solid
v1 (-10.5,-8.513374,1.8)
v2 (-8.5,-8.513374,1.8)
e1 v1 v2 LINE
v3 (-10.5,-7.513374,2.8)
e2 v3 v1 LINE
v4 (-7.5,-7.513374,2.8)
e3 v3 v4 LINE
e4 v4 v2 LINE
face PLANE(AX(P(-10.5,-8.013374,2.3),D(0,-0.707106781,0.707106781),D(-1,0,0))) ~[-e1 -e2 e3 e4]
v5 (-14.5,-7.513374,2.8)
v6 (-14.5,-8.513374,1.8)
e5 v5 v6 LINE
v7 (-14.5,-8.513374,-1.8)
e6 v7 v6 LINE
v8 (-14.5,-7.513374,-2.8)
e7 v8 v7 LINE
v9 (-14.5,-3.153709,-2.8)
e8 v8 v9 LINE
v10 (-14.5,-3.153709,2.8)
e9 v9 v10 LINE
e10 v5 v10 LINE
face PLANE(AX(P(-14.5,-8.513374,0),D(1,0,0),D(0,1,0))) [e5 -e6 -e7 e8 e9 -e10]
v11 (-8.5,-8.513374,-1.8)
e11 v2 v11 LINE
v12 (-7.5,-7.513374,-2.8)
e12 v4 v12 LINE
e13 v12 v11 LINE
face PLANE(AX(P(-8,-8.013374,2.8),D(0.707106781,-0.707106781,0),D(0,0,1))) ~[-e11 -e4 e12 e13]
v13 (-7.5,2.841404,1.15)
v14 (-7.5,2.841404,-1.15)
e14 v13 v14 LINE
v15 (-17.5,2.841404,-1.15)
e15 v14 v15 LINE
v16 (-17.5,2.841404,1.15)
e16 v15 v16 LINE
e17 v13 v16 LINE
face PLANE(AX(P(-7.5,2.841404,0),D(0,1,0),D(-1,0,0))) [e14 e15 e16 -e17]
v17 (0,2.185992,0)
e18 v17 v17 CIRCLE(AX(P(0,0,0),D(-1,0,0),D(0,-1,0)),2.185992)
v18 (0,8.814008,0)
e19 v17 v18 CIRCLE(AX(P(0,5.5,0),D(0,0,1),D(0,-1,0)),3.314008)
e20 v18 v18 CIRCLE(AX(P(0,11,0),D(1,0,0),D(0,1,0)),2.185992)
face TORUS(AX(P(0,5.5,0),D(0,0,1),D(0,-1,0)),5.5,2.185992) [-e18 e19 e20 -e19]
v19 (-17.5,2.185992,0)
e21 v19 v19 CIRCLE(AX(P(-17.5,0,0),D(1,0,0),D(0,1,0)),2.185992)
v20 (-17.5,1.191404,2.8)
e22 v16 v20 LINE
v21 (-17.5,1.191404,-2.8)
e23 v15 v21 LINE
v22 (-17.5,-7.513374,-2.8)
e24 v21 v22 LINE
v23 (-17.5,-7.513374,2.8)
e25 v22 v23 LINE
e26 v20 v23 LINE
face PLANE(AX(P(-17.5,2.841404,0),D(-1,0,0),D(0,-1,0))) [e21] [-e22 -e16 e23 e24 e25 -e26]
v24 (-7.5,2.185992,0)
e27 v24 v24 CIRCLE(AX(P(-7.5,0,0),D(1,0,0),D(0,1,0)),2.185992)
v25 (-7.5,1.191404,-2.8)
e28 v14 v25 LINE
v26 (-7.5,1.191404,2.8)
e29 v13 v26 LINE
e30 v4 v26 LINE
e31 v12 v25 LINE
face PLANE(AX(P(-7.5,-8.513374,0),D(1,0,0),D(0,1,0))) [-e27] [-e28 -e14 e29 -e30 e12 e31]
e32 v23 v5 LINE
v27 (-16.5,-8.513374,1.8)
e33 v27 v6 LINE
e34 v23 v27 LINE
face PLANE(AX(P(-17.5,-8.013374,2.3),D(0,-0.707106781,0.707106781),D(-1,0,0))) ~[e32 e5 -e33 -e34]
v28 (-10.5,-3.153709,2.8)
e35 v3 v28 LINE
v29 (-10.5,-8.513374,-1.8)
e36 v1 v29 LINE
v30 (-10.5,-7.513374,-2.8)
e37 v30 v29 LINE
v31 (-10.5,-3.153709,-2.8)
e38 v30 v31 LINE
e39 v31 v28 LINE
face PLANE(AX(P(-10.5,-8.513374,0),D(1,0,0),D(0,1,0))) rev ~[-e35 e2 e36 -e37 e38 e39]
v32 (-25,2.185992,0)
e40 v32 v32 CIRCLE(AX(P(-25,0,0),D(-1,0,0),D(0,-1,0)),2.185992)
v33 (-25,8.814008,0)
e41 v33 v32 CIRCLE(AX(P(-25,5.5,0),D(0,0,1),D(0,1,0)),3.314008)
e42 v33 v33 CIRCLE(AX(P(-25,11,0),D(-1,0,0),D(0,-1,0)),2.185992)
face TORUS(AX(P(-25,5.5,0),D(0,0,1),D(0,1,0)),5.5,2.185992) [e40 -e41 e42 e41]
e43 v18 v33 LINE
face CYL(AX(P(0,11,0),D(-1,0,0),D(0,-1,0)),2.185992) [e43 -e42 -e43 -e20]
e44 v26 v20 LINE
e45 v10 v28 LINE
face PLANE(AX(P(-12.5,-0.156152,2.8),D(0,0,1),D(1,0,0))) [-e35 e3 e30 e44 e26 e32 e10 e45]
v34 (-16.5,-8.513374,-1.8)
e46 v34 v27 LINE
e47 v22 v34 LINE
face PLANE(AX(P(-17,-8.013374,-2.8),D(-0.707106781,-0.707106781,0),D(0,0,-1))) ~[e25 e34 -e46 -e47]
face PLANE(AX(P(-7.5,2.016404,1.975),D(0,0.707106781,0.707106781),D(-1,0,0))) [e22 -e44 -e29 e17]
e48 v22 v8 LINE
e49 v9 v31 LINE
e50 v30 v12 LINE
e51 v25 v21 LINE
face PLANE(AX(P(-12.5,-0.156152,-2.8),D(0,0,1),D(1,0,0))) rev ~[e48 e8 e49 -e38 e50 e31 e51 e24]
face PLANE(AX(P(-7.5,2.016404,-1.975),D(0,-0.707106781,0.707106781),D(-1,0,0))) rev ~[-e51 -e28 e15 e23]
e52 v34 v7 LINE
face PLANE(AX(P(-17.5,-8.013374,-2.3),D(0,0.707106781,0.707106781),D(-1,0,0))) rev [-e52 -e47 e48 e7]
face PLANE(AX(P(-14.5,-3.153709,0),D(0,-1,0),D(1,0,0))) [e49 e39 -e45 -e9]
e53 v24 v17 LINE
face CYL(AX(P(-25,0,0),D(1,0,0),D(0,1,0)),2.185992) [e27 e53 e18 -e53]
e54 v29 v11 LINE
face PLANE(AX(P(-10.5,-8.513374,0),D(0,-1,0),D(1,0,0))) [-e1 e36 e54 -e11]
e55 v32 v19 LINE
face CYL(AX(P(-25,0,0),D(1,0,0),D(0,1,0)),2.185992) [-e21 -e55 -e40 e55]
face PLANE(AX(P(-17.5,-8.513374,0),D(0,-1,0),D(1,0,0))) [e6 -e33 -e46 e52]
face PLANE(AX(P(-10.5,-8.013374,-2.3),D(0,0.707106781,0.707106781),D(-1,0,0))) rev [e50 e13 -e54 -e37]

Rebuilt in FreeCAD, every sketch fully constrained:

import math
import FreeCAD as App
import Part
import Sketcher

V = App.Vector


def edges_at(feature, points):
    """Names of the edges that pass closest to the given points."""
    edges = feature.Shape.Edges
    near = lambda p: min(range(len(edges)), key=lambda i: edges[i].distToShape(Part.Vertex(*p))[0])
    return sorted({f"Edge{near(p) + 1}" for p in points})

doc = App.newDocument("Part")
body = doc.addObject("PartDesign::Body", "Body")

sketch1 = body.newObject("Sketcher::SketchObject", "Sketch")
sketch1.AttachmentSupport = (doc.getObject("YZ_Plane"), [""])
sketch1.MapMode = "FlatFace"
sketch1.addGeometry(Part.Circle(V(0, 0, 0), V(0, 0, 1), 2.185992), False)
sketch1.addConstraint([
    Sketcher.Constraint("Coincident", 0, 3, -1, 1),
    Sketcher.Constraint("Diameter", 0, 4.371984),
])

sketch2 = body.newObject("Sketcher::SketchObject", "Sketch001")
sketch2.AttachmentSupport = (doc.getObject("XY_Plane"), [""])
sketch2.MapMode = "FlatFace"
sketch2.addGeometry([
    Part.ArcOfCircle(Part.Circle(V(0, 5.5, 0), V(0, 0, 1), 5.5), math.radians(-90), math.radians(90)),
    Part.LineSegment(V(0, 11, 0), V(-25, 11, 0)),
    Part.ArcOfCircle(Part.Circle(V(-25, 5.5, 0), V(0, 0, 1), 5.5), math.radians(90), math.radians(270)),
    Part.LineSegment(V(-25, 0, 0), V(0, 0, 0)),
], False)
sketch2.addConstraint([
    Sketcher.Constraint("Tangent", 0, 2, 1, 1),
    Sketcher.Constraint("Tangent", 1, 2, 2, 1),
    Sketcher.Constraint("Tangent", 2, 2, 3, 1),
    Sketcher.Constraint("Tangent", 3, 2, 0, 1),
    Sketcher.Constraint("Horizontal", 1),
    Sketcher.Constraint("Horizontal", 3),
    Sketcher.Constraint("Coincident", 3, 2, -1, 1),
    Sketcher.Constraint("Radius", 0, 5.5),
    Sketcher.Constraint("DistanceX", 1, 2, 1, 1, 25.0),
])
doc.recompute()

additivepipe = body.newObject("PartDesign::AdditivePipe", "AdditivePipe")
additivepipe.Profile = sketch1
additivepipe.Spine = (sketch2, ["Edge1", "Edge2", "Edge3", "Edge4"])

sketch3 = body.newObject("Sketcher::SketchObject", "Sketch002")
sketch3.AttachmentSupport = (doc.getObject("XY_Plane"), [""])
sketch3.MapMode = "FlatFace"
sketch3.addGeometry([
    Part.LineSegment(V(-7.5, 2.841404, 0), V(-17.5, 2.841404, 0)),
    Part.LineSegment(V(-17.5, 2.841404, 0), V(-17.5, -8.513374, 0)),
    Part.LineSegment(V(-17.5, -8.513374, 0), V(-14.5, -8.513374, 0)),
    Part.LineSegment(V(-14.5, -8.513374, 0), V(-14.5, -3.153709, 0)),
    Part.LineSegment(V(-14.5, -3.153709, 0), V(-10.5, -3.153709, 0)),
    Part.LineSegment(V(-10.5, -3.153709, 0), V(-10.5, -8.513374, 0)),
    Part.LineSegment(V(-10.5, -8.513374, 0), V(-7.5, -8.513374, 0)),
    Part.LineSegment(V(-7.5, -8.513374, 0), V(-7.5, 2.841404, 0)),
], False)
sketch3.addConstraint([
    Sketcher.Constraint("Coincident", 0, 2, 1, 1),
    Sketcher.Constraint("Coincident", 1, 2, 2, 1),
    Sketcher.Constraint("Coincident", 2, 2, 3, 1),
    Sketcher.Constraint("Coincident", 3, 2, 4, 1),
    Sketcher.Constraint("Coincident", 4, 2, 5, 1),
    Sketcher.Constraint("Coincident", 5, 2, 6, 1),
    Sketcher.Constraint("Coincident", 6, 2, 7, 1),
    Sketcher.Constraint("Coincident", 7, 2, 0, 1),
    Sketcher.Constraint("Horizontal", 0),
    Sketcher.Constraint("Vertical", 1),
    Sketcher.Constraint("Horizontal", 2),
    Sketcher.Constraint("Vertical", 3),
    Sketcher.Constraint("Horizontal", 4),
    Sketcher.Constraint("Vertical", 5),
    Sketcher.Constraint("Horizontal", 6),
    Sketcher.Constraint("Vertical", 7),
    Sketcher.Constraint("Horizontal", 2, 2, 5, 2),
    Sketcher.Constraint("Equal", 2, 6),
    Sketcher.Constraint("DistanceX", 0, 2, 0, 1, 10.0),
    Sketcher.Constraint("DistanceX", 2, 1, 2, 2, 3.0),
    Sketcher.Constraint("DistanceX", 0, 2, -1, 1, 17.5),
    Sketcher.Constraint("DistanceY", 1, 2, 1, 1, 11.354778),
    Sketcher.Constraint("DistanceY", 3, 1, 3, 2, 5.359665),
    Sketcher.Constraint("DistanceY", 3, 2, -1, 1, 3.153709),
])
pad1 = body.newObject("PartDesign::Pad", "Pad")
pad1.Profile = sketch3
pad1.Length = 5.6
pad1.Midplane = True
doc.recompute()

chamfer = body.newObject("PartDesign::Chamfer", "Chamfer")
chamfer.Base = (pad1, edges_at(pad1, [(-12.5, 2.841, 2.8), (-12.5, 2.841, -2.8)]))
chamfer.Size = 1.65
doc.recompute()

chamfer2 = body.newObject("PartDesign::Chamfer", "Chamfer001")
chamfer2.Base = (chamfer, edges_at(chamfer, [
    (-9, -8.513, -2.8),
    (-7.5, -8.513, 0),
    (-9, -8.513, 2.8),
    (-16, -8.513, -2.8),
    (-17.5, -8.513, 0),
    (-16, -8.513, 2.8),
]))
chamfer2.Size = 1

doc.recompute()
